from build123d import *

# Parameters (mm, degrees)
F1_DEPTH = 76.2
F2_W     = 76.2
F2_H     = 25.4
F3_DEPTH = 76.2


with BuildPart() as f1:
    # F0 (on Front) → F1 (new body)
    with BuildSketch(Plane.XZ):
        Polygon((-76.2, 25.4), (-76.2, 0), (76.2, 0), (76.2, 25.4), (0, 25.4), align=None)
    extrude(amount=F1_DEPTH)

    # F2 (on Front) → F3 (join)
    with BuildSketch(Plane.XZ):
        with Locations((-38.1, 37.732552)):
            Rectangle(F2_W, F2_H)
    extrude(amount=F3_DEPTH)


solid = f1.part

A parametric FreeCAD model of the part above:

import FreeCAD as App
import Part
import Sketcher

V = App.Vector
Q = App.Units.Quantity


def add_polygon(sketch, points):
    """Adds a closed chain of lines whose ends are joined by coincident constraints."""
    first, n = sketch.GeometryCount, len(points)
    for a, b in zip(points, points[1:] + points[:1]):
        sketch.addGeometry(Part.LineSegment(App.Vector(*a, 0), App.Vector(*b, 0)), False)
    for i in range(n):
        sketch.addConstraint(Sketcher.Constraint("Coincident", first + i, 2, first + (i + 1) % n, 1))

doc = App.newDocument("Part")
body = doc.addObject("PartDesign::Body", "Body")

# Sketch on XZ plane
sketch1 = body.newObject("Sketcher::SketchObject", "Sketch")
sketch1.AttachmentSupport = (doc.getObject("XZ_Plane"), [""])
sketch1.MapMode = "FlatFace"
add_polygon(sketch1, [(-76.2, 25.4), (-76.2, 0), (76.2, 0), (76.2, 25.4)])  # lines 0-3
sketch1.addConstraint(Sketcher.Constraint("Vertical", 0))
sketch1.addConstraint(Sketcher.Constraint("Horizontal", 1))
sketch1.addConstraint(Sketcher.Constraint("Vertical", 2))
sketch1.addConstraint(Sketcher.Constraint("Horizontal", 3))
sketch1.addConstraint(Sketcher.Constraint("Symmetric", 0, 2, 1, 2, -1, 1))
sketch1.addConstraint(Sketcher.Constraint("DistanceX", 1, 1, 1, 2, Q("6 in")))
sketch1.addConstraint(Sketcher.Constraint("DistanceY", 0, 2, 0, 1, Q("1 in")))
pad1 = body.newObject("PartDesign::Pad", "Pad")
pad1.Profile = sketch1
pad1.Length = Q("3 in")

# Sketch on XZ plane
sketch2 = body.newObject("Sketcher::SketchObject", "Sketch001")
sketch2.AttachmentSupport = (doc.getObject("XZ_Plane"), [""])
sketch2.MapMode = "FlatFace"
add_polygon(sketch2, [(-76.2, 50.432552), (-76.2, 25.032552), (0, 25.032552), (0, 50.432552)])  # lines 0-3
sketch2.addConstraint(Sketcher.Constraint("Vertical", 0))
sketch2.addConstraint(Sketcher.Constraint("Horizontal", 1))
sketch2.addConstraint(Sketcher.Constraint("Vertical", 2))
sketch2.addConstraint(Sketcher.Constraint("Horizontal", 3))
sketch2.addConstraint(Sketcher.Constraint("PointOnObject", 1, 2, -2))
sketch2.addConstraint(Sketcher.Constraint("DistanceX", 1, 1, 1, 2, Q("3 in")))
sketch2.addConstraint(Sketcher.Constraint("DistanceY", 0, 2, 0, 1, Q("1 in")))
sketch2.addConstraint(Sketcher.Constraint("DistanceY", -1, 1, 0, 2, 25.032552))
pad2 = body.newObject("PartDesign::Pad", "Pad001")
pad2.Profile = sketch2
pad2.Length = Q("3 in")

doc.recompute()
